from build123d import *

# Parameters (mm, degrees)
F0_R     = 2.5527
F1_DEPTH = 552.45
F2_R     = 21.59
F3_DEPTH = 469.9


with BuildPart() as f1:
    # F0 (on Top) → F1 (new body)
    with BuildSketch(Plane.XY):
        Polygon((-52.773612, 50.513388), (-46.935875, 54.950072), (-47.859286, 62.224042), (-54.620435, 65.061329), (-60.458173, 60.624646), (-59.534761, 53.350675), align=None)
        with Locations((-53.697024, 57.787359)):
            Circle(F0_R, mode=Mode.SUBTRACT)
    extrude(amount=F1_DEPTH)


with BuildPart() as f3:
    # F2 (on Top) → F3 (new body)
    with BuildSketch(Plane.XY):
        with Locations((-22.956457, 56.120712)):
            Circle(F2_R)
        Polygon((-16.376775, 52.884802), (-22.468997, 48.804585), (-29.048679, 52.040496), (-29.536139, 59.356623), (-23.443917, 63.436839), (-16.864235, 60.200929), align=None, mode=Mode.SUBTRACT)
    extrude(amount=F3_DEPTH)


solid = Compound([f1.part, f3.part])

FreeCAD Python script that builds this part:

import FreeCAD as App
import Part
import Sketcher
from FreeCAD import Vector
Q = App.Units.Quantity

doc = App.newDocument("Part")
body = doc.addObject("PartDesign::Body", "Body")

# Sketch on XY plane
sketch1 = doc.addObject("Sketcher::SketchObject", "Sketch")
body.addObject(sketch1)
sketch1.AttachmentSupport = (doc.XY_Plane, [""])
sketch1.MapMode = "FlatFace"
sketch1.addGeometry(Part.LineSegment(Vector(-52.8, 50.5, 0), Vector(-46.9, 55, 0)), False)
sketch1.addGeometry(Part.LineSegment(Vector(-46.9, 55, 0), Vector(-47.9, 62.2, 0)), False)
sketch1.addGeometry(Part.LineSegment(Vector(-47.9, 62.2, 0), Vector(-54.6, 65.1, 0)), False)
sketch1.addGeometry(Part.LineSegment(Vector(-54.6, 65.1, 0), Vector(-60.5, 60.6, 0)), False)
sketch1.addGeometry(Part.LineSegment(Vector(-60.5, 60.6, 0), Vector(-59.5, 53.4, 0)), False)
sketch1.addGeometry(Part.LineSegment(Vector(-59.5, 53.4, 0), Vector(-52.8, 50.5, 0)), False)
sketch1.addGeometry(Part.Circle(Vector(-53.7, 57.8, 0), Vector(0, 0, 1), 2.6), False)
sketch1.addConstraint(Sketcher.Constraint("Coincident", 0, 2, 1, 1))
sketch1.addConstraint(Sketcher.Constraint("Coincident", 1, 2, 2, 1))
sketch1.addConstraint(Sketcher.Constraint("Coincident", 2, 2, 3, 1))
sketch1.addConstraint(Sketcher.Constraint("Coincident", 3, 2, 4, 1))
sketch1.addConstraint(Sketcher.Constraint("Coincident", 4, 2, 5, 1))
sketch1.addConstraint(Sketcher.Constraint("Coincident", 5, 2, 0, 1))
sketch1.addConstraint(Sketcher.Constraint("Parallel", 0, 3))
sketch1.addConstraint(Sketcher.Constraint("Parallel", 1, 4))
sketch1.addConstraint(Sketcher.Constraint("Parallel", 2, 5))
sketch1.addConstraint(Sketcher.Constraint("Equal", 0, 1))
sketch1.addConstraint(Sketcher.Constraint("Equal", 1, 2))
sketch1.addConstraint(Sketcher.Constraint("Equal", 2, 3))
sketch1.addConstraint(Sketcher.Constraint("Diameter", 6, Q("0.201 in")))
sketch1.addConstraint(Sketcher.Constraint("Distance", 0, Q("7.332349 mm")))
sketch1.addConstraint(Sketcher.Constraint("DistanceY", -1, 1, 6, 3, Q("57.787359 mm")))
sketch1.addConstraint(Sketcher.Constraint("DistanceY", -1, 1, 1, 2, Q("62.224042 mm")))
sketch1.addConstraint(Sketcher.Constraint("DistanceY", -1, 1, 2, 2, Q("65.061329 mm")))
sketch1.addConstraint(Sketcher.Constraint("DistanceX", 4, 2, -1, 1, Q("59.534761 mm")))
sketch1.addConstraint(Sketcher.Constraint("DistanceX", 6, 3, 0, 2, Q("6.761149 mm")))
sketch1.addConstraint(Sketcher.Constraint("DistanceX", 1, 2, 0, 2, Q("0.923411 mm")))
sketch1.addConstraint(Sketcher.Constraint("DistanceX", 3, 2, 6, 3, Q("6.761149 mm")))
pad1 = doc.addObject("PartDesign::Pad", "Pad")
body.addObject(pad1)
pad1.Profile = sketch1
pad1.Length = Q("21.75 in")
body2 = doc.addObject("PartDesign::Body", "Body001")

# Sketch on XY plane
sketch2 = doc.addObject("Sketcher::SketchObject", "Sketch001")
body2.addObject(sketch2)
sketch2.AttachmentSupport = (doc.getObject("XY_Plane001"), [""])
sketch2.MapMode = "FlatFace"
sketch2.addGeometry(Part.Circle(Vector(-23, 56, 0), Vector(0, 0, 1), 22), False)
sketch2.addGeometry(Part.LineSegment(Vector(-17, 60, 0), Vector(-16, 53, 0)), False)
sketch2.addGeometry(Part.LineSegment(Vector(-16, 53, 0), Vector(-22, 49, 0)), False)
sketch2.addGeometry(Part.LineSegment(Vector(-22, 49, 0), Vector(-29, 52, 0)), False)
sketch2.addGeometry(Part.LineSegment(Vector(-29, 52, 0), Vector(-30, 59, 0)), False)
sketch2.addGeometry(Part.LineSegment(Vector(-30, 59, 0), Vector(-23, 63, 0)), False)
sketch2.addGeometry(Part.LineSegment(Vector(-23, 63, 0), Vector(-17, 60, 0)), False)
sketch2.addConstraint(Sketcher.Constraint("Coincident", 1, 2, 2, 1))
sketch2.addConstraint(Sketcher.Constraint("Coincident", 2, 2, 3, 1))
sketch2.addConstraint(Sketcher.Constraint("Coincident", 3, 2, 4, 1))
sketch2.addConstraint(Sketcher.Constraint("Coincident", 4, 2, 5, 1))
sketch2.addConstraint(Sketcher.Constraint("Coincident", 5, 2, 6, 1))
sketch2.addConstraint(Sketcher.Constraint("Coincident", 6, 2, 1, 1))
sketch2.addConstraint(Sketcher.Constraint("Parallel", 1, 4))
sketch2.addConstraint(Sketcher.Constraint("Parallel", 2, 5))
sketch2.addConstraint(Sketcher.Constraint("Parallel", 3, 6))
sketch2.addConstraint(Sketcher.Constraint("Equal", 1, 2))
sketch2.addConstraint(Sketcher.Constraint("Equal", 2, 3))
sketch2.addConstraint(Sketcher.Constraint("Equal", 3, 4))
sketch2.addConstraint(Sketcher.Constraint("Diameter", 0, Q("1.7 in")))
sketch2.addConstraint(Sketcher.Constraint("Distance", 1, Q("7.332348 mm")))
sketch2.addConstraint(Sketcher.Constraint("DistanceY", -1, 1, 0, 3, Q("56.120712 mm")))
sketch2.addConstraint(Sketcher.Constraint("DistanceX", 3, 2, -1, 1, Q("29.048679 mm")))
sketch2.addConstraint(Sketcher.Constraint("DistanceX", 4, 2, -1, 1, Q("29.536139 mm")))
sketch2.addConstraint(Sketcher.Constraint("DistanceY", -1, 1, 5, 2, Q("63.436839 mm")))
sketch2.addConstraint(Sketcher.Constraint("DistanceY", -1, 1, 6, 2, Q("60.200929 mm")))
sketch2.addConstraint(Sketcher.Constraint("DistanceX", 0, 3, 2, 2, Q("0.48746 mm")))
sketch2.addConstraint(Sketcher.Constraint("DistanceY", 0, 3, 4, 2, Q("3.235911 mm")))
pad2 = doc.addObject("PartDesign::Pad", "Pad001")
body2.addObject(pad2)
pad2.Profile = sketch2
pad2.Length = Q("18.5 in")

doc.recompute()
